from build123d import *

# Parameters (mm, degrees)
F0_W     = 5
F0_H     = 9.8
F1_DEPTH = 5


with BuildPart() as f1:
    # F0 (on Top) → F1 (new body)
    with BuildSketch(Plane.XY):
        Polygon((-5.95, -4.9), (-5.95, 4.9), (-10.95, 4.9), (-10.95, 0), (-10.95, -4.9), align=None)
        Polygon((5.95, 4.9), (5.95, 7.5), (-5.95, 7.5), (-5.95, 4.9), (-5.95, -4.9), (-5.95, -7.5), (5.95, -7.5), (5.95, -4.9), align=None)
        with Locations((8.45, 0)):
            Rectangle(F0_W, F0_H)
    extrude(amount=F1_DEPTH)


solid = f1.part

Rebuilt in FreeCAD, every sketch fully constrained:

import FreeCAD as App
import Part
import Sketcher
Q = App.Units.Quantity

doc = App.newDocument("Part")
params = doc.addObject("Spreadsheet::Sheet", "Params")
for row, (alias, value) in enumerate([
    ("sketch1_width", "5 mm"),
    ("sketch1_width2", "11.9 mm"),
    ("sketch1_height", "9.8 mm"),
    ("sketch1_height2", "2.6 mm"),
    ("pad1_length", "5 mm"),
], start=1):
    params.set(f"A{row}", alias)
    params.set(f"B{row}", "=" + value)
    params.setAlias(f"B{row}", alias)

body = doc.addObject("PartDesign::Body", "Body")

# Sketch on XY plane
sketch1 = body.newObject("Sketcher::SketchObject", "Sketch")
sketch1.AttachmentSupport = (doc.getObject("XY_Plane"), [""])
sketch1.MapMode = "FlatFace"
sketch1.addGeometry([
    Part.LineSegment(App.Vector(-5.95, 4.9, 0), App.Vector(-10.95, 4.9, 0)),  # 0
    Part.LineSegment(App.Vector(-10.95, 4.9, 0), App.Vector(-10.95, -4.9, 0)),  # 1
    Part.LineSegment(App.Vector(-10.95, -4.9, 0), App.Vector(-5.95, -4.9, 0)),  # 2
    Part.LineSegment(App.Vector(-5.95, -4.9, 0), App.Vector(-5.95, -7.5, 0)),  # 3
    Part.LineSegment(App.Vector(-5.95, -7.5, 0), App.Vector(5.95, -7.5, 0)),  # 4
    Part.LineSegment(App.Vector(5.95, -7.5, 0), App.Vector(5.95, -4.9, 0)),  # 5
    Part.LineSegment(App.Vector(5.95, -4.9, 0), App.Vector(10.95, -4.9, 0)),  # 6
    Part.LineSegment(App.Vector(10.95, -4.9, 0), App.Vector(10.95, 4.9, 0)),  # 7
    Part.LineSegment(App.Vector(10.95, 4.9, 0), App.Vector(5.95, 4.9, 0)),  # 8
    Part.LineSegment(App.Vector(5.95, 4.9, 0), App.Vector(5.95, 7.5, 0)),  # 9
    Part.LineSegment(App.Vector(5.95, 7.5, 0), App.Vector(-5.95, 7.5, 0)),  # 10
    Part.LineSegment(App.Vector(-5.95, 7.5, 0), App.Vector(-5.95, 4.9, 0)),  # 11
], False)
sketch1.addConstraint([
    Sketcher.Constraint("Coincident", 0, 2, 1, 1),
    Sketcher.Constraint("Coincident", 1, 2, 2, 1),
    Sketcher.Constraint("Coincident", 2, 2, 3, 1),
    Sketcher.Constraint("Coincident", 3, 2, 4, 1),
    Sketcher.Constraint("Coincident", 4, 2, 5, 1),
    Sketcher.Constraint("Coincident", 5, 2, 6, 1),
    Sketcher.Constraint("Coincident", 6, 2, 7, 1),
    Sketcher.Constraint("Coincident", 7, 2, 8, 1),
    Sketcher.Constraint("Coincident", 8, 2, 9, 1),
    Sketcher.Constraint("Coincident", 9, 2, 10, 1),
    Sketcher.Constraint("Coincident", 10, 2, 11, 1),
    Sketcher.Constraint("Coincident", 11, 2, 0, 1),
    Sketcher.Constraint("Horizontal", 0),
    Sketcher.Constraint("Vertical", 1),
    Sketcher.Constraint("Horizontal", 2),
    Sketcher.Constraint("Vertical", 3),
    Sketcher.Constraint("Horizontal", 4),
    Sketcher.Constraint("Vertical", 5),
    Sketcher.Constraint("Horizontal", 6),
    Sketcher.Constraint("Vertical", 7),
    Sketcher.Constraint("Horizontal", 8),
    Sketcher.Constraint("Vertical", 9),
    Sketcher.Constraint("Horizontal", 10),
    Sketcher.Constraint("Vertical", 11),
    Sketcher.Constraint("Symmetric", 0, 2, 6, 2, -1, 1),
    Sketcher.Constraint("Symmetric", 2, 2, 8, 2, -1, 1),
    Sketcher.Constraint("Symmetric", 4, 2, 10, 2, -1, 1),
    Sketcher.Constraint("Symmetric", 2, 2, 5, 2, -2),
    Sketcher.Constraint("DistanceX", 0, 2, 0, 1, Q("5 mm")),
    Sketcher.Constraint("DistanceX", 4, 1, 4, 2, Q("11.9 mm")),
    Sketcher.Constraint("DistanceY", 1, 2, 1, 1, Q("9.8 mm")),
    Sketcher.Constraint("DistanceY", 3, 2, 3, 1, Q("2.6 mm")),
])
sketch1.setExpression("Constraints[28]", "Params.sketch1_width")
sketch1.setExpression("Constraints[29]", "Params.sketch1_width2")
sketch1.setExpression("Constraints[30]", "Params.sketch1_height")
sketch1.setExpression("Constraints[31]", "Params.sketch1_height2")
pad1 = body.newObject("PartDesign::Pad", "Pad")
pad1.Profile = sketch1
pad1.setExpression("Length", "Params.pad1_length")

doc.recompute()
